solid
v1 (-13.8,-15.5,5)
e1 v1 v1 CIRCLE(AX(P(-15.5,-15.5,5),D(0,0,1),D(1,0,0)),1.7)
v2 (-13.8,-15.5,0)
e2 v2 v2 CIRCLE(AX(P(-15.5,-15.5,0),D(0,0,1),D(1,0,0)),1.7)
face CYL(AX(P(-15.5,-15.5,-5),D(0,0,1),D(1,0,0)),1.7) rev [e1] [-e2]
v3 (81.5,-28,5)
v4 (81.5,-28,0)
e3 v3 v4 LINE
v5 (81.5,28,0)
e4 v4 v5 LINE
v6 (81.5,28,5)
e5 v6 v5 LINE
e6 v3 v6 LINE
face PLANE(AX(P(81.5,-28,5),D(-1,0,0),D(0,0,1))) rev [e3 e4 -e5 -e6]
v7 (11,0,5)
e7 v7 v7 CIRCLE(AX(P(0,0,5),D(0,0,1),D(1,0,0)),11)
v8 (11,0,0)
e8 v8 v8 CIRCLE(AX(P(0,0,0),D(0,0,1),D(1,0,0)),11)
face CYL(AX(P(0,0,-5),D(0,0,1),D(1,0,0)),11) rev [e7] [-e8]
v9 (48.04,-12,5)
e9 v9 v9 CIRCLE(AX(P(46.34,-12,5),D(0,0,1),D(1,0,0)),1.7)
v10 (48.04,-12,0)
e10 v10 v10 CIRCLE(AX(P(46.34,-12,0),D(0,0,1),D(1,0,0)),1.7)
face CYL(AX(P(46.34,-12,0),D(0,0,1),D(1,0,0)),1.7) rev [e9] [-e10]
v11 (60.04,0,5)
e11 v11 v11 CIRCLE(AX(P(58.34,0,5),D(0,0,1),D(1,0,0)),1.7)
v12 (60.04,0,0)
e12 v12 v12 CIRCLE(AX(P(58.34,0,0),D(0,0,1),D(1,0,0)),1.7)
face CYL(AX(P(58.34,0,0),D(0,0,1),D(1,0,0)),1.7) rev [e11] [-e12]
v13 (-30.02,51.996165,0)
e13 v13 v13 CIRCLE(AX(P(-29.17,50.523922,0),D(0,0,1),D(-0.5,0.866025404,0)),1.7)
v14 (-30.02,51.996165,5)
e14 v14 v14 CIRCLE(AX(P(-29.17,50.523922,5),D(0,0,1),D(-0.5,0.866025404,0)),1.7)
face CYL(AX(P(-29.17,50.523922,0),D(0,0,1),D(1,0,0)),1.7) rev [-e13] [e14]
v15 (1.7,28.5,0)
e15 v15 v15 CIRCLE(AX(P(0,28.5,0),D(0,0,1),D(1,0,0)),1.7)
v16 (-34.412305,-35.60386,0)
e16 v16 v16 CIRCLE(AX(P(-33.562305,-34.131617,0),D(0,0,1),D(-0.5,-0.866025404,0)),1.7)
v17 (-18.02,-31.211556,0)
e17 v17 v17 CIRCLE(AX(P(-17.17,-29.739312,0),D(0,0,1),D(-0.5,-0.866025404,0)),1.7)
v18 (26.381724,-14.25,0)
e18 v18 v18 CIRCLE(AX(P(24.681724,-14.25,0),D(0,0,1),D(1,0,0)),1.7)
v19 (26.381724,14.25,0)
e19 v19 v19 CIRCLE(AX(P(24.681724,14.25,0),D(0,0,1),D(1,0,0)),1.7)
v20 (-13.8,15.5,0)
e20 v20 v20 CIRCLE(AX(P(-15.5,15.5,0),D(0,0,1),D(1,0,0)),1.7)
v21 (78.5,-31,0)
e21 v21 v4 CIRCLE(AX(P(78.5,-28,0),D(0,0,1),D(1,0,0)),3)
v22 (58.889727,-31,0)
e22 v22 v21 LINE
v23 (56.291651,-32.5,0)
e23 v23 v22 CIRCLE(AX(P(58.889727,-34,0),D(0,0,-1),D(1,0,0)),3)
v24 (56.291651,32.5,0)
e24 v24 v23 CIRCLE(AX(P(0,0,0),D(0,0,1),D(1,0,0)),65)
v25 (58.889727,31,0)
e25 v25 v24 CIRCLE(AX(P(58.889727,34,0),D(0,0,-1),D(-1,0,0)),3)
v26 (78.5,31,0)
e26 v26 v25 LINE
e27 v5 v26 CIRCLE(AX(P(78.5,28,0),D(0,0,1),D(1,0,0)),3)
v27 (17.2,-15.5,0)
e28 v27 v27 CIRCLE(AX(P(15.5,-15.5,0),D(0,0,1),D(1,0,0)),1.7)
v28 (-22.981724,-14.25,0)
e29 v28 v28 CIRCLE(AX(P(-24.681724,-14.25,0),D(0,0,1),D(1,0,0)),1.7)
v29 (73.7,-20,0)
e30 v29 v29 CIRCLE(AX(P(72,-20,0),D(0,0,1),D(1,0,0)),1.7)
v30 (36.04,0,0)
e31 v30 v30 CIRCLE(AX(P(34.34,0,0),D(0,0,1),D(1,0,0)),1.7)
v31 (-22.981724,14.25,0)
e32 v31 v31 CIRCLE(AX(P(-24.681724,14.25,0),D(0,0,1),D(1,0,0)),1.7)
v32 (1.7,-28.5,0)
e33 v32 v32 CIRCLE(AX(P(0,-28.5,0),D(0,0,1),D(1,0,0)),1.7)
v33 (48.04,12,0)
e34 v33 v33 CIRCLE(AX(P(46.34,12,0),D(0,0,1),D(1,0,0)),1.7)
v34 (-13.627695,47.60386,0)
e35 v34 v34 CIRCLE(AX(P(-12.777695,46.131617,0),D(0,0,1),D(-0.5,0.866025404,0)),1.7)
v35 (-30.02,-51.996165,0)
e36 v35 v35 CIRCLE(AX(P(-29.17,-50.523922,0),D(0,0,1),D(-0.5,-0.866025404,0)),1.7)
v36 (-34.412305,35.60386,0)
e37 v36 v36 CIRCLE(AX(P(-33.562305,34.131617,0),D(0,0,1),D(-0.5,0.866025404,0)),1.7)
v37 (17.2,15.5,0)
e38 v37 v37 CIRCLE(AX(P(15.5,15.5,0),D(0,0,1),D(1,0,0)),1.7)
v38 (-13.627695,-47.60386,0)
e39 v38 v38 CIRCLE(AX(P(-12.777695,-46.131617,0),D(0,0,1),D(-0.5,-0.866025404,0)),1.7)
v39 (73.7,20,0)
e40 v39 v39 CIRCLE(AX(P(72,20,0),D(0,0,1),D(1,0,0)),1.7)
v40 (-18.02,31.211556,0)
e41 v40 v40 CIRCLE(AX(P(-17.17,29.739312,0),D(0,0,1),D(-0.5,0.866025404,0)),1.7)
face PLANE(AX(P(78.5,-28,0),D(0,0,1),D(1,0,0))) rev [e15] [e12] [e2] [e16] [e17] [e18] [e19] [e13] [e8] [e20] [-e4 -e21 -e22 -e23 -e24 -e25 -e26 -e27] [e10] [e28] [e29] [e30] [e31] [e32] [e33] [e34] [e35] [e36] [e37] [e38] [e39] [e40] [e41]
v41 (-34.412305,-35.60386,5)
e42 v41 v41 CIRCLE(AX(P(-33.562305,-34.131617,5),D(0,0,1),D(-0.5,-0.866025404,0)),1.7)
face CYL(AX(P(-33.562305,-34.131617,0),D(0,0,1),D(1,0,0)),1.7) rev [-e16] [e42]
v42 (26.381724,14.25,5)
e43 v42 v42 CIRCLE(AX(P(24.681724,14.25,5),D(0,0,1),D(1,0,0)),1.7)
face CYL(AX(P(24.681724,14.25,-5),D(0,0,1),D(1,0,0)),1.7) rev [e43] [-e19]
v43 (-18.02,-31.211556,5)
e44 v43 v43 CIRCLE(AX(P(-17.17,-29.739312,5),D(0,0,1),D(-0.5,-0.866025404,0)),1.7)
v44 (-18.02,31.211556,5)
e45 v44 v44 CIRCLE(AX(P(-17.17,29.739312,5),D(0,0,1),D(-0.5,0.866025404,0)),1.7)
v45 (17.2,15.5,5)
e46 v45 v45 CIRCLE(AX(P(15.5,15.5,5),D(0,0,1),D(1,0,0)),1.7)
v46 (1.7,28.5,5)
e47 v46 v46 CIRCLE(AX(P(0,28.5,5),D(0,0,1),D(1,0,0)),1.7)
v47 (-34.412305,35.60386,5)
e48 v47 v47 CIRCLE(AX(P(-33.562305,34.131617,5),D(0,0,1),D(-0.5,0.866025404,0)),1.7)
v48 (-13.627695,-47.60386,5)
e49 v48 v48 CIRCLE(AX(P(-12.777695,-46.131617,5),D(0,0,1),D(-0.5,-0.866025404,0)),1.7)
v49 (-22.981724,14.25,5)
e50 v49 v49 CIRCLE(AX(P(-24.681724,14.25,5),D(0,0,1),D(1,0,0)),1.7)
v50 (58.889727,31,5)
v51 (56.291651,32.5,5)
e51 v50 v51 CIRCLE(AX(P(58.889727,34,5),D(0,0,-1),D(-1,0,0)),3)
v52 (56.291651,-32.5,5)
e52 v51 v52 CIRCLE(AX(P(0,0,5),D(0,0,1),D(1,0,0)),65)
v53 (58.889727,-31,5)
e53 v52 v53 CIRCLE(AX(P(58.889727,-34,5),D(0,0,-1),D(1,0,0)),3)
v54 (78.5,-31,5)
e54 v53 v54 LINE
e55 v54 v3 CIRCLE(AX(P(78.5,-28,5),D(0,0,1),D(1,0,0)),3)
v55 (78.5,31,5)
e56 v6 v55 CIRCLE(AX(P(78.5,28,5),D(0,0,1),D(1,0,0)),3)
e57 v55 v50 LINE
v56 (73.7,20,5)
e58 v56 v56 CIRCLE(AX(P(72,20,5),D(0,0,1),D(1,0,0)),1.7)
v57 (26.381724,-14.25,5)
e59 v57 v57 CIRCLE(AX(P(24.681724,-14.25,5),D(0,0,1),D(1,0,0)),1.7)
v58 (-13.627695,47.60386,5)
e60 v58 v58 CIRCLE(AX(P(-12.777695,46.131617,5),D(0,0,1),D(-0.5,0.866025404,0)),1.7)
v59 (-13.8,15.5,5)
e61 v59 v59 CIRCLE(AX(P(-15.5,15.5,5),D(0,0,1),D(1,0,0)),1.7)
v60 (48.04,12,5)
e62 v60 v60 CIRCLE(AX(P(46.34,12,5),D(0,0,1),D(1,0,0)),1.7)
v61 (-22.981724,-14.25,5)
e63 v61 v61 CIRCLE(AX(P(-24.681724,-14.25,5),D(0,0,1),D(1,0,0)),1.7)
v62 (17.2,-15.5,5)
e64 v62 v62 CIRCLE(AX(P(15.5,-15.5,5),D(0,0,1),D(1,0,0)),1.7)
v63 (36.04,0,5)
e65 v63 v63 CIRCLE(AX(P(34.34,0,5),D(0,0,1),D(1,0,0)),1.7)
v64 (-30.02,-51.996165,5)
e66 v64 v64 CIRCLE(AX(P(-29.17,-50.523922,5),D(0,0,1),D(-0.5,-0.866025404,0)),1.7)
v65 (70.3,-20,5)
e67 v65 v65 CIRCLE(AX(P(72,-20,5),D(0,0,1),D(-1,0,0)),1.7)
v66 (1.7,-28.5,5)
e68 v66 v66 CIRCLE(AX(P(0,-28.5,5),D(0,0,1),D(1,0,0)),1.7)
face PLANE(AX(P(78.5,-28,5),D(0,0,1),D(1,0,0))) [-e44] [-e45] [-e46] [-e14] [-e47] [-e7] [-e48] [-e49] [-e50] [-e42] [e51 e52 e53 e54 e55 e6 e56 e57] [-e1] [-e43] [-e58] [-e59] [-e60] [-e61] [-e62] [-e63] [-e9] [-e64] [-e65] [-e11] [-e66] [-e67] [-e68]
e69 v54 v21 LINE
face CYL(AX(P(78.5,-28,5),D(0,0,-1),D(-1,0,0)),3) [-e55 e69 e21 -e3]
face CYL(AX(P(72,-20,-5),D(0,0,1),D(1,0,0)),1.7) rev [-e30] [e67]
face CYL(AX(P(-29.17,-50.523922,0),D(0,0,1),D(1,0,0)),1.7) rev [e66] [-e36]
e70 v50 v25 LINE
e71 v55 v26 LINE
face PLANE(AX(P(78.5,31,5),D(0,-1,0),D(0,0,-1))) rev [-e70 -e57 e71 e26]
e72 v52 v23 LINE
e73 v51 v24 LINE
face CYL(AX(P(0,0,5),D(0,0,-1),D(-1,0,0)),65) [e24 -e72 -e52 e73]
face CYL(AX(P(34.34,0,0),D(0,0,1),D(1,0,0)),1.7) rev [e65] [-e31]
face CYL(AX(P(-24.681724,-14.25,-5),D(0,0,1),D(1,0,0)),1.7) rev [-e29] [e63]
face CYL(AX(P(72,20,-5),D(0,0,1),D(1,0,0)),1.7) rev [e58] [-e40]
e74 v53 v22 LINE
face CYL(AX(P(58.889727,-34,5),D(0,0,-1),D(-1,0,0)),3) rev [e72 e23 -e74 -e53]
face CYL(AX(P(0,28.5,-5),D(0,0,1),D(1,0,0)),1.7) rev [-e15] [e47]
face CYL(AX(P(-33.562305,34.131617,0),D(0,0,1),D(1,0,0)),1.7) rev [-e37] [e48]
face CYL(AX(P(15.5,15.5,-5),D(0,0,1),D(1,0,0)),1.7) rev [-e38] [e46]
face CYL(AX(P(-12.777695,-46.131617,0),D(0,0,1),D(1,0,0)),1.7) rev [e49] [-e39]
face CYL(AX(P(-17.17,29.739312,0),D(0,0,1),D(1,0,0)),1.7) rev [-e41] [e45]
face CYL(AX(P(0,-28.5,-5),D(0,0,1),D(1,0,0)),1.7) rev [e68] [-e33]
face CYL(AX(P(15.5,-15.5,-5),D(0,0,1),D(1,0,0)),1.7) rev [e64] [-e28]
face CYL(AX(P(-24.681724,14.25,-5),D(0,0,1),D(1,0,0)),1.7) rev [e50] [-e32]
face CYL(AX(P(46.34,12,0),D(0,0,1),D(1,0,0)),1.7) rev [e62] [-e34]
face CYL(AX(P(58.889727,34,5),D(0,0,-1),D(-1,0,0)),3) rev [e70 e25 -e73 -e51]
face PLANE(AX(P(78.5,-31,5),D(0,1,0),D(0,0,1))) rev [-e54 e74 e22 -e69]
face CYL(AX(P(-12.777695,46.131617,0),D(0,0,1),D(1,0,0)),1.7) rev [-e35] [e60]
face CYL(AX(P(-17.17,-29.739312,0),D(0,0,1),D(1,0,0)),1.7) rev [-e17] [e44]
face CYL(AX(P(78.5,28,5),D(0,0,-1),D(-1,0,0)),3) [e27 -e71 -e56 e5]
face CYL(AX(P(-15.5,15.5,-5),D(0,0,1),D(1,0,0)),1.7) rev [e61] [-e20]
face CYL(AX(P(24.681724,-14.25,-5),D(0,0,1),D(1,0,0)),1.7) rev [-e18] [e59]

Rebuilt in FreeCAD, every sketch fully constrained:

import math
import FreeCAD as App
import Part
import Sketcher
Q = App.Units.Quantity

doc = App.newDocument("Part")
params = doc.addObject("Spreadsheet::Sheet", "Params")
for row, (alias, value) in enumerate([
    ("sketch1_radius", "3 mm"),
    ("sketch1_radius2", "65 mm"),
    ("sketch1_height", "56 mm"),
    ("pad1_length", "5 mm"),
    ("sketch2_diameter", "3.4 mm"),
    ("pocket1_length", "5 mm"),
    ("sketch3_diameter", "22 mm"),
    ("sketch3_diameter2", "3.4 mm"),
    ("pocket2_length", "10 mm"),
    ("sketch4_diameter", "3.4 mm"),
    ("pocket3_length", "10 mm"),
], start=1):
    params.set(f"A{row}", alias)
    params.set(f"B{row}", "=" + value)
    params.setAlias(f"B{row}", alias)

body = doc.addObject("PartDesign::Body", "Body")

# Sketch on XY plane
sketch1 = body.newObject("Sketcher::SketchObject", "Sketch")
sketch1.AttachmentSupport = (doc.getObject("XY_Plane"), [""])
sketch1.MapMode = "FlatFace"
sketch1.addGeometry([
    Part.LineSegment(App.Vector(81.5, -28, 0), App.Vector(81.5, 28, 0)),  # 0
    Part.ArcOfCircle(Part.Circle(App.Vector(78.5, 28, 0), App.Vector(0, 0, 1), 3), math.radians(0), math.radians(90)),  # 1
    Part.LineSegment(App.Vector(78.5, 31, 0), App.Vector(58.9, 31, 0)),  # 2
    Part.ArcOfCircle(Part.Circle(App.Vector(58.9, 34, 0), App.Vector(0, 0, 1), 3), math.radians(-150), math.radians(-90)),  # 3
    Part.ArcOfCircle(Part.Circle(App.Vector(0, 0, 0), App.Vector(0, 0, 1), 65), math.radians(30), math.radians(330)),  # 4
    Part.ArcOfCircle(Part.Circle(App.Vector(58.9, -34, 0), App.Vector(0, 0, 1), 3), math.radians(90), math.radians(150)),  # 5
    Part.LineSegment(App.Vector(58.9, -31, 0), App.Vector(78.5, -31, 0)),  # 6
    Part.ArcOfCircle(Part.Circle(App.Vector(78.5, -28, 0), App.Vector(0, 0, 1), 3), math.radians(-90), math.radians(0)),  # 7
], False)
sketch1.addConstraint([
    Sketcher.Constraint("Tangent", 0, 2, 1, 1),
    Sketcher.Constraint("Tangent", 1, 2, 2, 1),
    Sketcher.Constraint("Tangent", 2, 2, 3, 2),
    Sketcher.Constraint("Tangent", 3, 1, 4, 1),
    Sketcher.Constraint("Tangent", 4, 2, 5, 2),
    Sketcher.Constraint("Tangent", 5, 1, 6, 1),
    Sketcher.Constraint("Tangent", 6, 2, 7, 1),
    Sketcher.Constraint("Tangent", 7, 2, 0, 1),
    Sketcher.Constraint("Vertical", 0),
    Sketcher.Constraint("Horizontal", 2),
    Sketcher.Constraint("Horizontal", 6),
    Sketcher.Constraint("Coincident", 4, 3, -1, 1),
    Sketcher.Constraint("Equal", 1, 3),
    Sketcher.Constraint("Equal", 3, 5),
    Sketcher.Constraint("Equal", 5, 7),
    Sketcher.Constraint("Vertical", 3, 3, 5, 3),
    Sketcher.Constraint("Radius", 1, Q("3 mm")),
    Sketcher.Constraint("Radius", 4, Q("65 mm")),
    Sketcher.Constraint("DistanceY", 0, 1, 0, 2, Q("56 mm")),
    Sketcher.Constraint("DistanceX", -1, 1, 1, 3, Q("78.5 mm")),
])
sketch1.setExpression("Constraints[16]", "Params.sketch1_radius")
sketch1.setExpression("Constraints[17]", "Params.sketch1_radius2")
sketch1.setExpression("Constraints[18]", "Params.sketch1_height")
pad1 = body.newObject("PartDesign::Pad", "Pad")
pad1.Profile = sketch1
pad1.setExpression("Length", "Params.pad1_length")

# Sketch on XY plane
sketch2 = body.newObject("Sketcher::SketchObject", "Sketch001")
sketch2.AttachmentSupport = (doc.getObject("XY_Plane"), [""])
sketch2.MapMode = "FlatFace"
sketch2.AttachmentOffset = App.Placement(App.Vector(0, 0, 5), App.Rotation())
sketch2.addGeometry([
    Part.Circle(App.Vector(58.3, 0, 0), App.Vector(0, 0, 1), 1.7),
    Part.Circle(App.Vector(46.3, -12, 0), App.Vector(0, 0, 1), 1.7),
    Part.Circle(App.Vector(34.3, 0, 0), App.Vector(0, 0, 1), 1.7),
    Part.Circle(App.Vector(46.3, 12, 0), App.Vector(0, 0, 1), 1.7),
], False)
sketch2.addConstraint([
    Sketcher.Constraint("Equal", 0, 1),
    Sketcher.Constraint("Equal", 1, 2),
    Sketcher.Constraint("Equal", 2, 3),
    Sketcher.Constraint("Symmetric", 1, 3, 3, 3, -1),
    Sketcher.Constraint("PointOnObject", 0, 3, -1),
    Sketcher.Constraint("PointOnObject", 2, 3, -1),
    Sketcher.Constraint("Diameter", 0, Q("3.4 mm")),
    Sketcher.Constraint("DistanceY", 1, 3, -1, 1, Q("12 mm")),
    Sketcher.Constraint("DistanceX", 1, 3, 0, 3, Q("12 mm")),
    Sketcher.Constraint("DistanceX", 2, 3, 1, 3, Q("12 mm")),
    Sketcher.Constraint("DistanceX", -1, 1, 0, 3, Q("58.34 mm")),
])
sketch2.setExpression("Constraints[6]", "Params.sketch2_diameter")
pocket1 = body.newObject("PartDesign::Pocket", "Pocket")
pocket1.Profile = sketch2
pocket1.setExpression("Length", "Params.pocket1_length")
doc.recompute()

polarpattern = body.newObject("PartDesign::PolarPattern", "PolarPattern")
polarpattern.Originals = [pocket1]
polarpattern.Axis = (doc.getObject("Z_Axis"), [""])
polarpattern.Angle = 360
polarpattern.Occurrences = 3
body.Tip = polarpattern

# Sketch on XY plane
sketch3 = body.newObject("Sketcher::SketchObject", "Sketch002")
sketch3.AttachmentSupport = (doc.getObject("XY_Plane"), [""])
sketch3.MapMode = "FlatFace"
sketch3.AttachmentOffset = App.Placement(App.Vector(0, 0, 5), App.Rotation())
sketch3.addGeometry([
    Part.Circle(App.Vector(0, 0, 0), App.Vector(0, 0, 1), 11),  # 0
    Part.Circle(App.Vector(15.5, -15.5, 0), App.Vector(0, 0, 1), 1.7),  # 1
    Part.Circle(App.Vector(15.5, 15.5, 0), App.Vector(0, 0, 1), 1.7),  # 2
    Part.Circle(App.Vector(-15.5, 15.5, 0), App.Vector(0, 0, 1), 1.7),  # 3
    Part.Circle(App.Vector(-15.5, -15.5, 0), App.Vector(0, 0, 1), 1.7),  # 4
    Part.Circle(App.Vector(72, 20, 0), App.Vector(0, 0, 1), 1.7),  # 5
    Part.Circle(App.Vector(72, -20, 0), App.Vector(0, 0, 1), 1.7),  # 6
], False)
sketch3.addConstraint([
    Sketcher.Constraint("Coincident", 0, 3, -1, 1),
    Sketcher.Constraint("Equal", 1, 2),
    Sketcher.Constraint("Equal", 2, 3),
    Sketcher.Constraint("Equal", 3, 4),
    Sketcher.Constraint("Equal", 4, 5),
    Sketcher.Constraint("Equal", 5, 6),
    Sketcher.Constraint("Symmetric", 1, 3, 3, 3, -1, 1),
    Sketcher.Constraint("Symmetric", 2, 3, 4, 3, -1, 1),
    Sketcher.Constraint("Symmetric", 2, 3, 3, 3, -2),
    Sketcher.Constraint("Symmetric", 5, 3, 6, 3, -1),
    Sketcher.Constraint("Diameter", 0, Q("22 mm")),
    Sketcher.Constraint("Diameter", 1, Q("3.4 mm")),
    Sketcher.Constraint("DistanceX", -1, 1, 5, 3, Q("72 mm")),
    Sketcher.Constraint("DistanceY", -1, 1, 5, 3, Q("20 mm")),
    Sketcher.Constraint("DistanceY", 1, 3, 2, 3, Q("31 mm")),
    Sketcher.Constraint("DistanceX", 3, 3, 2, 3, Q("31 mm")),
])
sketch3.setExpression("Constraints[10]", "Params.sketch3_diameter")
sketch3.setExpression("Constraints[11]", "Params.sketch3_diameter2")
pocket2 = body.newObject("PartDesign::Pocket", "Pocket001")
pocket2.Profile = sketch3
pocket2.setExpression("Length", "Params.pocket2_length")

# Sketch on XY plane
sketch4 = body.newObject("Sketcher::SketchObject", "Sketch003")
sketch4.AttachmentSupport = (doc.getObject("XY_Plane"), [""])
sketch4.MapMode = "FlatFace"
sketch4.AttachmentOffset = App.Placement(App.Vector(0, 0, 5), App.Rotation())
sketch4.addGeometry([
    Part.Circle(App.Vector(0, 28.5, 0), App.Vector(0, 0, 1), 1.7),  # 0
    Part.Circle(App.Vector(24.7, 14.2, 0), App.Vector(0, 0, 1), 1.7),  # 1
    Part.Circle(App.Vector(24.7, -14.2, 0), App.Vector(0, 0, 1), 1.7),  # 2
    Part.Circle(App.Vector(0, -28.5, 0), App.Vector(0, 0, 1), 1.7),  # 3
    Part.Circle(App.Vector(-24.7, -14.2, 0), App.Vector(0, 0, 1), 1.7),  # 4
    Part.Circle(App.Vector(-24.7, 14.2, 0), App.Vector(0, 0, 1), 1.7),  # 5
], False)
sketch4.addConstraint([
    Sketcher.Constraint("Equal", 0, 1),
    Sketcher.Constraint("Equal", 1, 2),
    Sketcher.Constraint("Equal", 2, 3),
    Sketcher.Constraint("Equal", 3, 4),
    Sketcher.Constraint("Equal", 4, 5),
    Sketcher.Constraint("Symmetric", 0, 3, 3, 3, -1, 1),
    Sketcher.Constraint("Symmetric", 1, 3, 4, 3, -1, 1),
    Sketcher.Constraint("Symmetric", 2, 3, 5, 3, -1, 1),
    Sketcher.Constraint("Symmetric", 2, 3, 4, 3, -2),
    Sketcher.Constraint("PointOnObject", 0, 3, -2),
    Sketcher.Constraint("Diameter", 0, Q("3.4 mm")),
    Sketcher.Constraint("DistanceY", 3, 3, 0, 3, Q("57 mm")),
    Sketcher.Constraint("DistanceY", 2, 3, 1, 3, Q("28.5 mm")),
    Sketcher.Constraint("DistanceX", 4, 3, 2, 3, Q("49.363448 mm")),
])
sketch4.setExpression("Constraints[10]", "Params.sketch4_diameter")
pocket3 = body.newObject("PartDesign::Pocket", "Pocket002")
pocket3.Profile = sketch4
pocket3.setExpression("Length", "Params.pocket3_length")

doc.recompute()
